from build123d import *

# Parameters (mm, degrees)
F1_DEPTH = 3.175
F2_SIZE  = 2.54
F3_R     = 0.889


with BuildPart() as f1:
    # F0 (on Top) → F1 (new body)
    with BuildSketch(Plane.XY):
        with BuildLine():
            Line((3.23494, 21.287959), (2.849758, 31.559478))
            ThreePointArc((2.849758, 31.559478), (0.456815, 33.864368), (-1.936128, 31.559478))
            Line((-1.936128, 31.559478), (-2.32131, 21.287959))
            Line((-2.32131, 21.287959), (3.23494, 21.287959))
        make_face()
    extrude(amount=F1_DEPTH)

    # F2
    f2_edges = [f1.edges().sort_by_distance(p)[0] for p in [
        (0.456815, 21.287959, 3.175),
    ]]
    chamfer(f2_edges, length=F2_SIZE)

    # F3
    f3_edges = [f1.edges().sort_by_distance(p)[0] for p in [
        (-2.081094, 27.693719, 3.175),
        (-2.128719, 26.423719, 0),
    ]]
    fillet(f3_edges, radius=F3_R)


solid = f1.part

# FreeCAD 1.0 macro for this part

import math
import FreeCAD as App
import Part
import Sketcher
Q = App.Units.Quantity


def edges_at(feature, points):
    """Names of the edges that pass closest to the given points."""
    edges = feature.Shape.Edges
    near = lambda p: min(range(len(edges)), key=lambda i: edges[i].distToShape(Part.Vertex(*p))[0])
    return sorted({f"Edge{near(p) + 1}" for p in points})

doc = App.newDocument("Part")
body = doc.addObject("PartDesign::Body", "Body")

# Sketch on XY plane
sketch1 = body.newObject("Sketcher::SketchObject", "Sketch")
sketch1.AttachmentSupport = (doc.getObject("XY_Plane"), [""])
sketch1.MapMode = "FlatFace"
sketch1.addGeometry([
    Part.LineSegment(App.Vector(3.2, 21.3, 0), App.Vector(2.8, 31.6, 0)),
    Part.ArcOfCircle(Part.Circle(App.Vector(0.5, 31.5, 0), App.Vector(0, 0, 1), 2.4), math.radians(2), math.radians(178)),
    Part.LineSegment(App.Vector(-1.9, 31.6, 0), App.Vector(-2.3, 21.3, 0)),
    Part.LineSegment(App.Vector(-2.3, 21.3, 0), App.Vector(3.2, 21.3, 0)),
], False)
sketch1.addConstraint([
    Sketcher.Constraint("Tangent", 0, 2, 1, 1),
    Sketcher.Constraint("Tangent", 1, 2, 2, 1),
    Sketcher.Constraint("Coincident", 2, 2, 3, 1),
    Sketcher.Constraint("Coincident", 3, 2, 0, 1),
    Sketcher.Constraint("Horizontal", 3),
    Sketcher.Constraint("Horizontal", 0, 2, 1, 2),
    Sketcher.Constraint("DistanceX", 3, 1, 3, 2, Q("0.21875 in")),
    Sketcher.Constraint("Radius", 1, 2.394625),
    Sketcher.Constraint("Distance", 0, 10.278739),
    Sketcher.Constraint("DistanceX", -1, 1, 0, 2, 2.849758),
    Sketcher.Constraint("DistanceY", -1, 1, 1, 2, 31.559478),
])
pad1 = body.newObject("PartDesign::Pad", "Pad")
pad1.Profile = sketch1
pad1.Length = Q("0.125 in")
doc.recompute()

chamfer = body.newObject("PartDesign::Chamfer", "Chamfer")
chamfer.Base = (pad1, edges_at(pad1, [(0.457, 21.288, 3.175)]))
chamfer.Size = Q("0.1 in")
doc.recompute()

fillet = body.newObject("PartDesign::Fillet", "Fillet")
fillet.Base = (chamfer, edges_at(chamfer, [(-2.081, 27.694, 3.175), (-2.129, 26.424, 0)]))
fillet.Radius = Q("0.035 in")

doc.recompute()
